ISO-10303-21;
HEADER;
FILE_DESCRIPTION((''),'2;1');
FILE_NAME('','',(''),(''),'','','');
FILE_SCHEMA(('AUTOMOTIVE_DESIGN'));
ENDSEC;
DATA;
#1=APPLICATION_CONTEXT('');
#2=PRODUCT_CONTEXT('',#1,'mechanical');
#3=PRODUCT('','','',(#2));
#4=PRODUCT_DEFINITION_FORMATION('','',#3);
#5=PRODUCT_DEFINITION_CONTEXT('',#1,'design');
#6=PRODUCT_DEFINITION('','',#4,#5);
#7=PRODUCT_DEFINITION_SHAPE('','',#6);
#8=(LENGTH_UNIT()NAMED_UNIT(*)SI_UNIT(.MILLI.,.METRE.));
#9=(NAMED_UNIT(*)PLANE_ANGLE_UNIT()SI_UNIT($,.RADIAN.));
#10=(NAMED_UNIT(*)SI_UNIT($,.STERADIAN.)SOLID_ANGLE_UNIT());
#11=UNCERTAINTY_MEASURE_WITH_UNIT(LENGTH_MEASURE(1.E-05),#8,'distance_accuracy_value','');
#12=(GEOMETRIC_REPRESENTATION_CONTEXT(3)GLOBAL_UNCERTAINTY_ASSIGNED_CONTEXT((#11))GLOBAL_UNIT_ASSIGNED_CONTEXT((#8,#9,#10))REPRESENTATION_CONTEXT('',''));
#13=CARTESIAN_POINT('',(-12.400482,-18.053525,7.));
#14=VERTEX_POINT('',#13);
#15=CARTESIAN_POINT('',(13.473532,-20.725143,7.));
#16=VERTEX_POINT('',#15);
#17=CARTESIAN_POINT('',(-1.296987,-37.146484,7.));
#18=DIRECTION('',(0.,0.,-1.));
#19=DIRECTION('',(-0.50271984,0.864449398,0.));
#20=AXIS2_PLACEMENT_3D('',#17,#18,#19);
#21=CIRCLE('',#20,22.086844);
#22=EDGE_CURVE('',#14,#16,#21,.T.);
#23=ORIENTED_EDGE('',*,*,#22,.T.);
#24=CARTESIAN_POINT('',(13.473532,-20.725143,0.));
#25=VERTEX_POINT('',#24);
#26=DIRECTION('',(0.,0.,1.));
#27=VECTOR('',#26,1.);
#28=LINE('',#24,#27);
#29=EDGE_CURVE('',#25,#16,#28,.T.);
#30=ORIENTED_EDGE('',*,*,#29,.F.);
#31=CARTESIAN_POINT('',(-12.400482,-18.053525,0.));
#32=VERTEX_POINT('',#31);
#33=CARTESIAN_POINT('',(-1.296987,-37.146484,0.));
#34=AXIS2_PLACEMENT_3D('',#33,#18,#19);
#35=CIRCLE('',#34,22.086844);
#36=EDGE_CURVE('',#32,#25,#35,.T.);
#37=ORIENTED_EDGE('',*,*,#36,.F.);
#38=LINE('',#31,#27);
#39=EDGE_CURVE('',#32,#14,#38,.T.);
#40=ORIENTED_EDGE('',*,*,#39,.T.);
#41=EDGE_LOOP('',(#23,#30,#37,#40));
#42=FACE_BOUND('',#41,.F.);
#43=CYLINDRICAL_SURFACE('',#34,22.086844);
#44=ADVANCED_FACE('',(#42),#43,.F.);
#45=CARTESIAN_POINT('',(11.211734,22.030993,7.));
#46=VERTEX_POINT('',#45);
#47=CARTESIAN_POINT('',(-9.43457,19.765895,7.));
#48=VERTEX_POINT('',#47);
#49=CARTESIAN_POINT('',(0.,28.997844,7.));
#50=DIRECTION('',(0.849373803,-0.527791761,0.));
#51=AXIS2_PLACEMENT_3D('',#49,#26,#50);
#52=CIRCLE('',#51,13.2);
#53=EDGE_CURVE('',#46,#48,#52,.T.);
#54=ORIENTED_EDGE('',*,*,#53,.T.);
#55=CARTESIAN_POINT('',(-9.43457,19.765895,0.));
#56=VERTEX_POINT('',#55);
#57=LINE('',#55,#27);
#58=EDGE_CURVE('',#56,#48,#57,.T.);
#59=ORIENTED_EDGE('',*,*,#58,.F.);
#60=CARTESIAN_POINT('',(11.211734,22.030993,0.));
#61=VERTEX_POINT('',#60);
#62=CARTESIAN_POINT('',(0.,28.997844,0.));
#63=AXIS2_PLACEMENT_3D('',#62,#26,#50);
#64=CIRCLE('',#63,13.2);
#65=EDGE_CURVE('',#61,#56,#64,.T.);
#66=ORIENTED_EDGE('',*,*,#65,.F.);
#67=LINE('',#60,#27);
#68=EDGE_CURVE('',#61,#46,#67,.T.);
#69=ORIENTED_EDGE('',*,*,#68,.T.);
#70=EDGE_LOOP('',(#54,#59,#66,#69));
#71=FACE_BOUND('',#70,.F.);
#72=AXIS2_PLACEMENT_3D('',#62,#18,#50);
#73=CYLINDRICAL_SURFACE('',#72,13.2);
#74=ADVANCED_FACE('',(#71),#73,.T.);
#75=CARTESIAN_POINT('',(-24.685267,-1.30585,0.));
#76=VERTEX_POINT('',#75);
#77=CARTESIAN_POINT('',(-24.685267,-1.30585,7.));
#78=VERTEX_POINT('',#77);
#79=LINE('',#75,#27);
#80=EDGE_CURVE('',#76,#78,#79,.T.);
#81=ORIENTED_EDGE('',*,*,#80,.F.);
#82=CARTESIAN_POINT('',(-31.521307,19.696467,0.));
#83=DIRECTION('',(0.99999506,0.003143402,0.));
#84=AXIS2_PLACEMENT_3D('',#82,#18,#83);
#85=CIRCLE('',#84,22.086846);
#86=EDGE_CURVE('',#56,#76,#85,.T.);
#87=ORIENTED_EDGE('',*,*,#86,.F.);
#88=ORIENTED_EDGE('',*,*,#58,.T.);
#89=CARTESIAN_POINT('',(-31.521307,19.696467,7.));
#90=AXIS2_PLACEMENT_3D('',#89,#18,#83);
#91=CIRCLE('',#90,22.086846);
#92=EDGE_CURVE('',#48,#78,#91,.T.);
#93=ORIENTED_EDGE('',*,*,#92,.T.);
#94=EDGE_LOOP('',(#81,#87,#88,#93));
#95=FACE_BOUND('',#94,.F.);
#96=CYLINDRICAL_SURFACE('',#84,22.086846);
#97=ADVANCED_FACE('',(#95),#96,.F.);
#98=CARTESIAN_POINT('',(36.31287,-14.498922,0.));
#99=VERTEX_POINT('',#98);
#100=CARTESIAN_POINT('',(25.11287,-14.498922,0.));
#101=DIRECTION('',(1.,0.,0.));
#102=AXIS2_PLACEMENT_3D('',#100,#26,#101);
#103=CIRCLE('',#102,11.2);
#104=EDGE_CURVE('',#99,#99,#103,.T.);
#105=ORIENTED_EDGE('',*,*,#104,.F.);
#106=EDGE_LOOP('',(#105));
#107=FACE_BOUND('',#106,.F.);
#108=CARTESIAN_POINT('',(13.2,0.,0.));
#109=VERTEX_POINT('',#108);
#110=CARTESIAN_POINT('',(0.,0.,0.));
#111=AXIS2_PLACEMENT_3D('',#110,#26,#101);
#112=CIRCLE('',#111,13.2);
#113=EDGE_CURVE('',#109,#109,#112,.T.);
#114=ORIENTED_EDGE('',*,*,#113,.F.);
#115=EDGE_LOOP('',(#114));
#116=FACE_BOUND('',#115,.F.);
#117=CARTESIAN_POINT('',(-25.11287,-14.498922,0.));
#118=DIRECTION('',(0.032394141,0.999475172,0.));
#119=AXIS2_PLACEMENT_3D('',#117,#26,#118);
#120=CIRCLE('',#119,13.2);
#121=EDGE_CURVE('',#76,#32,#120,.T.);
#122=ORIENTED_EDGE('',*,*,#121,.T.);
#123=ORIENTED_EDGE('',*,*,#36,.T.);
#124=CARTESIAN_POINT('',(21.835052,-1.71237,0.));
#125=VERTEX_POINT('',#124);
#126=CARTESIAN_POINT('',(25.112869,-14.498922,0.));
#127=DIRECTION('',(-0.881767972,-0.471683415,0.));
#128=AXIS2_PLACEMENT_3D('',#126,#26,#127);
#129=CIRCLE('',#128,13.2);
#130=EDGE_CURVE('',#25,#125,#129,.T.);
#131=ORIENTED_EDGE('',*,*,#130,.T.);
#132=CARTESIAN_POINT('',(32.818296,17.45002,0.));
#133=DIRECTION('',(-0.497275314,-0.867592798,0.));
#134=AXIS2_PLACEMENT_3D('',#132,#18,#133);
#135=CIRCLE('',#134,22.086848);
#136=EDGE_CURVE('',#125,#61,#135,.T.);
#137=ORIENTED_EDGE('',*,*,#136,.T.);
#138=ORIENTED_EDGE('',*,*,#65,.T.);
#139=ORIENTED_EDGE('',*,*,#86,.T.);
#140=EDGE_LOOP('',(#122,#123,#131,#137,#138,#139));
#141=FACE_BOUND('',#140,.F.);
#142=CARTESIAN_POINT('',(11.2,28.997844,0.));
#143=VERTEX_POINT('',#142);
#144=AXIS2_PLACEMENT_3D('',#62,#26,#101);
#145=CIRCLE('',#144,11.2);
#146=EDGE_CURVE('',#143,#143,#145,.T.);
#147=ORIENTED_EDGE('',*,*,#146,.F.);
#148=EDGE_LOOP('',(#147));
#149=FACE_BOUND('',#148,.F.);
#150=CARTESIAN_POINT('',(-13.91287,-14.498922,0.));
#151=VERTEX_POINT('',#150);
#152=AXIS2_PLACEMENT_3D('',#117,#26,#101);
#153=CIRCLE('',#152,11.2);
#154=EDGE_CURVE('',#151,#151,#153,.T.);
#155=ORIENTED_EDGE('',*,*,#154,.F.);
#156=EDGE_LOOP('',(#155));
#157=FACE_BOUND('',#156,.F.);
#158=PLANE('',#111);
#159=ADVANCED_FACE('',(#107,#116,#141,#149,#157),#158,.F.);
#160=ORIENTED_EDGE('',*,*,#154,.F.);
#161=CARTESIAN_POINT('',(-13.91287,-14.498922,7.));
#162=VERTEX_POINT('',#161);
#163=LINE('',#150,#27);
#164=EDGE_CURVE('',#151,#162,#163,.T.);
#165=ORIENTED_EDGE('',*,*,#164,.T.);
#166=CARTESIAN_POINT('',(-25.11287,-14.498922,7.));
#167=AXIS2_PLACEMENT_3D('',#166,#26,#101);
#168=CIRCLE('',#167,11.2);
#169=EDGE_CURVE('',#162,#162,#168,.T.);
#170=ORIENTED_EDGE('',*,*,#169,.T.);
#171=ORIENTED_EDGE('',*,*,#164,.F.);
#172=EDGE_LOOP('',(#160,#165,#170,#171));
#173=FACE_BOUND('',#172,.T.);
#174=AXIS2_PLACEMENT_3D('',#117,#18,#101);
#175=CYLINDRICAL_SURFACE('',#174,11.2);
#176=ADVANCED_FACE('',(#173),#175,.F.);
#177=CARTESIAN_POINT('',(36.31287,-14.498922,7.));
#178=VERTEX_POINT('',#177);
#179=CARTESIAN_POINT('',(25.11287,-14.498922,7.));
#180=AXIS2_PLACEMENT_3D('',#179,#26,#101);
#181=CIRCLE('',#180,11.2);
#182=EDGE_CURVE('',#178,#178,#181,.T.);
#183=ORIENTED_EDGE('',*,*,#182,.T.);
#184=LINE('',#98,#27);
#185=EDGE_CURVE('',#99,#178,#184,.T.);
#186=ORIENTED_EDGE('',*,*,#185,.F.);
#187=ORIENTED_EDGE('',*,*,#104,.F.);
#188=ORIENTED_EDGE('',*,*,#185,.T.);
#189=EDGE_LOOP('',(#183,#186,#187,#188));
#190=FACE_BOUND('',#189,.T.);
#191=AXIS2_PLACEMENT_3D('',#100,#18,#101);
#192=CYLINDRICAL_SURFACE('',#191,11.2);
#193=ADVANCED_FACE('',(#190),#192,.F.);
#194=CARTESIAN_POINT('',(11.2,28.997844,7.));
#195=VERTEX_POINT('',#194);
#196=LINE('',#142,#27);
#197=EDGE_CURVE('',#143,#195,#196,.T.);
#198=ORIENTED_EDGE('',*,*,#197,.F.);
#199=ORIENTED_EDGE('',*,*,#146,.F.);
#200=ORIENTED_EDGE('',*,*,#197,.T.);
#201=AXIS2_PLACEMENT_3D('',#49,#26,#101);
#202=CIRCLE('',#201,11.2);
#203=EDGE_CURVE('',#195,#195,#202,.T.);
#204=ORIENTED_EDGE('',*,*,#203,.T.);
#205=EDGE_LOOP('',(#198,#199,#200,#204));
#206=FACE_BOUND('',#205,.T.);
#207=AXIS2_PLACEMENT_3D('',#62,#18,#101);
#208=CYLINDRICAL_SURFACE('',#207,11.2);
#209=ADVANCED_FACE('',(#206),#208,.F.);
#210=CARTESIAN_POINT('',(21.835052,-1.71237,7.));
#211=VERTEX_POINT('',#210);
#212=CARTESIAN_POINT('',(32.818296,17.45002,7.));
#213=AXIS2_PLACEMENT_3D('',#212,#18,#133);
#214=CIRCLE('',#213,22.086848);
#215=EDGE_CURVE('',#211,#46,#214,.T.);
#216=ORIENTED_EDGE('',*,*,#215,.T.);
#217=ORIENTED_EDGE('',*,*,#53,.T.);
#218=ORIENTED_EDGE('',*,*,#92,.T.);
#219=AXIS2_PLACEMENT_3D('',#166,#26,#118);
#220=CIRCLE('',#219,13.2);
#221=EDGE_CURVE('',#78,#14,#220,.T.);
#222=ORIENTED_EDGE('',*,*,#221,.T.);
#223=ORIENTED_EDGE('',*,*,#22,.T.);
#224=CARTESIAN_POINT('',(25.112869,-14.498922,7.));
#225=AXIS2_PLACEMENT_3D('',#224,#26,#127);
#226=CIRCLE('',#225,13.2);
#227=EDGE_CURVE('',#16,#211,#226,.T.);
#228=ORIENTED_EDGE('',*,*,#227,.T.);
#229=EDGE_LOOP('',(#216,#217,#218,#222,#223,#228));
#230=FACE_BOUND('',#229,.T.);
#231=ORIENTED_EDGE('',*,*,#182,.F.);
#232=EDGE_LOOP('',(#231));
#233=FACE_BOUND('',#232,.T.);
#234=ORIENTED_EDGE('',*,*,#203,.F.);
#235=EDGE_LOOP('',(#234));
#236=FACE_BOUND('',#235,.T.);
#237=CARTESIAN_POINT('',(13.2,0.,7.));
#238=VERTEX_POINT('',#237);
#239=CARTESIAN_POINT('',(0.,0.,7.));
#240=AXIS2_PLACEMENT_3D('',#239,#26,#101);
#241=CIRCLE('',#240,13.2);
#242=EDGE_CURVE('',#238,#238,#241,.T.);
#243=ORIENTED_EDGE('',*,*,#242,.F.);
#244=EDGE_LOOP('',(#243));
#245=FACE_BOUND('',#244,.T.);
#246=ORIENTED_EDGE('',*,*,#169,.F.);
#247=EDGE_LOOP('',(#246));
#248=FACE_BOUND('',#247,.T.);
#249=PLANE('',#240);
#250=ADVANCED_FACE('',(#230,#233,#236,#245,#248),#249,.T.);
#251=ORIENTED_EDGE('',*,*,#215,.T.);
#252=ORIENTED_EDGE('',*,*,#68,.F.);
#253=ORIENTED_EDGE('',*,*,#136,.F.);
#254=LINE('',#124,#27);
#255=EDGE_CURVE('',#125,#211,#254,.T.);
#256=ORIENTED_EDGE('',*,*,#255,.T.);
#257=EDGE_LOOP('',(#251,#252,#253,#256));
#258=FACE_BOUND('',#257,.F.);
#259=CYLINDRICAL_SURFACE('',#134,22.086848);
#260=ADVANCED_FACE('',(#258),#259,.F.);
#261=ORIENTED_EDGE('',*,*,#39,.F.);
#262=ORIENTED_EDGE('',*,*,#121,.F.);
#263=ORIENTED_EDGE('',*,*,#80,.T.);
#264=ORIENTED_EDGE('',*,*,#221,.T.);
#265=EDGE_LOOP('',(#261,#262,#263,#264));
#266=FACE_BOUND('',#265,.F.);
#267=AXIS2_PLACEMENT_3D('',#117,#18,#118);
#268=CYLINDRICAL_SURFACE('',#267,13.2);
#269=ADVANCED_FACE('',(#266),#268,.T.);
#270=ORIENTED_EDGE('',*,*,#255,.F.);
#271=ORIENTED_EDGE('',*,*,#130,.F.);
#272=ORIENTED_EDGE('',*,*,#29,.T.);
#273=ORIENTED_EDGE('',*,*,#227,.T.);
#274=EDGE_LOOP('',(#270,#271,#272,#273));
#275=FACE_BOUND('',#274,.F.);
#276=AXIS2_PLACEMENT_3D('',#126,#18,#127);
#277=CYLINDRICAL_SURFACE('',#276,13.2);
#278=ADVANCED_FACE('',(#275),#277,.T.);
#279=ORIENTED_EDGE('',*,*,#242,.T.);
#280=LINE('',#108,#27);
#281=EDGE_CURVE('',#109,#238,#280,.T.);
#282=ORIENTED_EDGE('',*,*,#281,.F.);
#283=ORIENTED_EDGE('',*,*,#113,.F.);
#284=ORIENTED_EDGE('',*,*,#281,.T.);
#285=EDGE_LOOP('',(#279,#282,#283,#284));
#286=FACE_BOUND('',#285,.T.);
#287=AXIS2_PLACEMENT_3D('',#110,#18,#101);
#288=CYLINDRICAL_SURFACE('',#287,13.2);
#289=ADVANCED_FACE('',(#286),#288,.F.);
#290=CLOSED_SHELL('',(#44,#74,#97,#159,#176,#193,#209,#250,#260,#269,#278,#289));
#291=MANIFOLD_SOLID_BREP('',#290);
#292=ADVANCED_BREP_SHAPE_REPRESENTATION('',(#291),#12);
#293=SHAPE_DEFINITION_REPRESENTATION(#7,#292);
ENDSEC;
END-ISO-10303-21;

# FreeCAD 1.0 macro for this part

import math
import FreeCAD as App
import Part
import Sketcher
Q = App.Units.Quantity

doc = App.newDocument("Part")
params = doc.addObject("Spreadsheet::Sheet", "Params")
for row, (alias, value) in enumerate([
    ("sketch1_diameter", "22.4 mm"),
    ("sketch1_diameter2", "26.4 mm"),
    ("pad1_length", "7 mm"),
], start=1):
    params.set(f"A{row}", alias)
    params.set(f"B{row}", "=" + value)
    params.setAlias(f"B{row}", alias)

body = doc.addObject("PartDesign::Body", "Body")

# Sketch on XY plane
sketch1 = body.newObject("Sketcher::SketchObject", "Sketch")
sketch1.AttachmentSupport = (doc.getObject("XY_Plane"), [""])
sketch1.MapMode = "FlatFace"
sketch1.addGeometry(Part.ArcOfCircle(Part.Circle(App.Vector(33, 17, 0), App.Vector(0, 0, 1), 22), math.radians(168), math.radians(240)), False)
sketch1.addGeometry(Part.ArcOfCircle(Part.Circle(App.Vector(0, 29, 0), App.Vector(0, 0, 1), 13), math.radians(-32), math.radians(224)), False)
sketch1.addGeometry(Part.ArcOfCircle(Part.Circle(App.Vector(-32, 20, 0), App.Vector(0, 0, 1), 22), math.radians(-72), math.radians(0)), False)
sketch1.addGeometry(Part.ArcOfCircle(Part.Circle(App.Vector(-25, -14, 0), App.Vector(0, 0, 1), 13), math.radians(88), math.radians(344)), False)
sketch1.addGeometry(Part.ArcOfCircle(Part.Circle(App.Vector(-1, -37, 0), App.Vector(0, 0, 1), 22), math.radians(48), math.radians(120)), False)
sketch1.addGeometry(Part.ArcOfCircle(Part.Circle(App.Vector(25, -14, 0), App.Vector(0, 0, 1), 13), math.radians(-152), math.radians(104)), False)
sketch1.addGeometry(Part.Circle(App.Vector(-25, -14, 0), App.Vector(0, 0, 1), 11), False)
sketch1.addGeometry(Part.Circle(App.Vector(0, 0, 0), App.Vector(0, 0, 1), 13), False)
sketch1.addGeometry(Part.Circle(App.Vector(25, -14, 0), App.Vector(0, 0, 1), 11), False)
sketch1.addGeometry(Part.Circle(App.Vector(0, 29, 0), App.Vector(0, 0, 1), 11), False)
sketch1.addConstraint(Sketcher.Constraint("Coincident", 0, 1, 1, 1))
sketch1.addConstraint(Sketcher.Constraint("Coincident", 1, 2, 2, 2))
sketch1.addConstraint(Sketcher.Constraint("Coincident", 2, 1, 3, 1))
sketch1.addConstraint(Sketcher.Constraint("Coincident", 3, 2, 4, 2))
sketch1.addConstraint(Sketcher.Constraint("Coincident", 4, 1, 5, 1))
sketch1.addConstraint(Sketcher.Constraint("Coincident", 5, 2, 0, 2))
sketch1.addConstraint(Sketcher.Constraint("Coincident", 7, 3, -1, 1))
sketch1.addConstraint(Sketcher.Constraint("Coincident", 6, 3, 3, 3))
sketch1.addConstraint(Sketcher.Constraint("Coincident", 8, 3, 5, 3))
sketch1.addConstraint(Sketcher.Constraint("Coincident", 9, 3, 1, 3))
sketch1.addConstraint(Sketcher.Constraint("Equal", 0, 2))
sketch1.addConstraint(Sketcher.Constraint("Equal", 1, 3))
sketch1.addConstraint(Sketcher.Constraint("Equal", 2, 4))
sketch1.addConstraint(Sketcher.Constraint("Equal", 3, 5))
sketch1.addConstraint(Sketcher.Constraint("Equal", 5, 7))
sketch1.addConstraint(Sketcher.Constraint("Equal", 6, 8))
sketch1.addConstraint(Sketcher.Constraint("Equal", 8, 9))
sketch1.addConstraint(Sketcher.Constraint("Symmetric", 3, 3, 5, 3, -2))
sketch1.addConstraint(Sketcher.Constraint("PointOnObject", 1, 3, -2))
sketch1.addConstraint(Sketcher.Constraint("Diameter", 6, Q("22.4 mm")))
sketch1.addConstraint(Sketcher.Constraint("Diameter", 7, Q("26.4 mm")))
sketch1.addConstraint(Sketcher.Constraint("Radius", 0, Q("22.086848 mm")))
sketch1.addConstraint(Sketcher.Constraint("DistanceY", 1, 2, 0, 1, Q("2.265098 mm")))
sketch1.addConstraint(Sketcher.Constraint("DistanceY", -1, 1, 0, 3, Q("17.45002 mm")))
sketch1.addConstraint(Sketcher.Constraint("DistanceX", 3, 3, -1, 1, Q("25.11287 mm")))
sketch1.addConstraint(Sketcher.Constraint("DistanceY", 5, 3, -1, 1, Q("14.498922 mm")))
sketch1.addConstraint(Sketcher.Constraint("DistanceX", 1, 2, -1, 1, Q("9.43457 mm")))
sketch1.addConstraint(Sketcher.Constraint("DistanceY", 2, 1, -1, 1, Q("1.30585 mm")))
sketch1.addConstraint(Sketcher.Constraint("DistanceX", -1, 1, 4, 1, Q("13.473532 mm")))
sketch1.addConstraint(Sketcher.Constraint("DistanceY", 5, 2, -1, 1, Q("1.71237 mm")))
sketch1.addConstraint(Sketcher.Constraint("DistanceY", 4, 3, 3, 3, Q("22.647562 mm")))
sketch1.setExpression("Constraints[19]", "Params.sketch1_diameter")
sketch1.setExpression("Constraints[20]", "Params.sketch1_diameter2")
pad1 = body.newObject("PartDesign::Pad", "Pad")
pad1.Profile = sketch1
pad1.setExpression("Length", "Params.pad1_length")

doc.recompute()
